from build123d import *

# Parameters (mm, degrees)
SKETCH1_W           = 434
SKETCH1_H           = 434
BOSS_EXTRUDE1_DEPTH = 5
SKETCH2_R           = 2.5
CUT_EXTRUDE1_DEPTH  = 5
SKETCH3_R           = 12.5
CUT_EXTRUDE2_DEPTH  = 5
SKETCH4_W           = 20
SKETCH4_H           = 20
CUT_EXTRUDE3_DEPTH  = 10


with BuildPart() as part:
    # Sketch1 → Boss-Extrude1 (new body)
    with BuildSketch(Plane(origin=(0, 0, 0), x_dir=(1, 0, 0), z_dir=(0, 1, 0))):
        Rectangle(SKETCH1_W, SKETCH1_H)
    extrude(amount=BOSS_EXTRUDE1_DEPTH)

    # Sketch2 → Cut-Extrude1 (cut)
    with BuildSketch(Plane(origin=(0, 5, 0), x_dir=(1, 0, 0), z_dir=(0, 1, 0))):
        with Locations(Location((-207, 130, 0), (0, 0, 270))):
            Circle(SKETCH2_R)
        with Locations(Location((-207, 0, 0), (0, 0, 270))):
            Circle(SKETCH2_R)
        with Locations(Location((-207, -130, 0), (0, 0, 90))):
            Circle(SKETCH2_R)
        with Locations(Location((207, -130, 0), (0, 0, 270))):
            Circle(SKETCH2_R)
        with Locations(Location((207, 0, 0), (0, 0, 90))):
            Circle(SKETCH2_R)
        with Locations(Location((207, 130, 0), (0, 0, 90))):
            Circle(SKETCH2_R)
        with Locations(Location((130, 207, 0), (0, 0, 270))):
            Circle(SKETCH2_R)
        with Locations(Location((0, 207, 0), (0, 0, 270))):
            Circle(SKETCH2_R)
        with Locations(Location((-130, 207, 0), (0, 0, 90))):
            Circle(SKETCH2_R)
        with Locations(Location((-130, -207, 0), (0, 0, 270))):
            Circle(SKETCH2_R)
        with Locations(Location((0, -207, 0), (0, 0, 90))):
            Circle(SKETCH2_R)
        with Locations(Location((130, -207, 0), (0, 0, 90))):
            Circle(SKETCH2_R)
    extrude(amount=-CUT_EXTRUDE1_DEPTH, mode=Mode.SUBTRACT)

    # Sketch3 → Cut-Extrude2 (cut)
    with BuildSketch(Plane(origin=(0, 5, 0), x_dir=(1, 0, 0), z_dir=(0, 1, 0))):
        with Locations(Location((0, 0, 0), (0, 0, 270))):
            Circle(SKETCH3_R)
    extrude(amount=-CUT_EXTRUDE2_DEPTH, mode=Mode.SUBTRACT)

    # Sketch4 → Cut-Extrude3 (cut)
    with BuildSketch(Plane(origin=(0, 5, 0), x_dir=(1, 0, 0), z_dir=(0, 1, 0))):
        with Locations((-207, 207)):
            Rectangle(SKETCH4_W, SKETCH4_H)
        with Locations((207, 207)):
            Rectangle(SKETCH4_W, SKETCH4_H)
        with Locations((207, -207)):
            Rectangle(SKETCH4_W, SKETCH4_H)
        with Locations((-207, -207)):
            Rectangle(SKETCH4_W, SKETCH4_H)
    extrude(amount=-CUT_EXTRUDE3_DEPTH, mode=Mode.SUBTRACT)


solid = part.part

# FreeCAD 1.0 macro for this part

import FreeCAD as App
import Part
import Sketcher
from FreeCAD import Vector

doc = App.newDocument("Part")
body = doc.addObject("PartDesign::Body", "Body")

# Sketch on XZ plane
sketch1 = doc.addObject("Sketcher::SketchObject", "Sketch")
body.addObject(sketch1)
sketch1.AttachmentSupport = (doc.XZ_Plane, [""])
sketch1.MapMode = "FlatFace"
sketch1.addGeometry(Part.LineSegment(Vector(-217, -217, 0), Vector(-217, 217, 0)), False)
sketch1.addGeometry(Part.LineSegment(Vector(-217, 217, 0), Vector(217, 217, 0)), False)
sketch1.addGeometry(Part.LineSegment(Vector(217, 217, 0), Vector(217, -217, 0)), False)
sketch1.addGeometry(Part.LineSegment(Vector(217, -217, 0), Vector(-217, -217, 0)), False)
sketch1.addConstraint(Sketcher.Constraint("Coincident", 0, 2, 1, 1))
sketch1.addConstraint(Sketcher.Constraint("Coincident", 1, 2, 2, 1))
sketch1.addConstraint(Sketcher.Constraint("Coincident", 2, 2, 3, 1))
sketch1.addConstraint(Sketcher.Constraint("Coincident", 3, 2, 0, 1))
sketch1.addConstraint(Sketcher.Constraint("Vertical", 0))
sketch1.addConstraint(Sketcher.Constraint("Horizontal", 1))
sketch1.addConstraint(Sketcher.Constraint("Vertical", 2))
sketch1.addConstraint(Sketcher.Constraint("Horizontal", 3))
sketch1.addConstraint(Sketcher.Constraint("Symmetric", 0, 2, 2, 2, -1, 1))
sketch1.addConstraint(Sketcher.Constraint("Equal", 3, 0))
sketch1.addConstraint(Sketcher.Constraint("DistanceX", 1, 1, 1, 2, 434.0))
pad1 = doc.addObject("PartDesign::Pad", "Pad")
body.addObject(pad1)
pad1.Profile = sketch1
pad1.Length = 5
pad1.Reversed = True

# Sketch on XZ plane
sketch2 = doc.addObject("Sketcher::SketchObject", "Sketch001")
body.addObject(sketch2)
sketch2.AttachmentSupport = (doc.XZ_Plane, [""])
sketch2.MapMode = "FlatFace"
sketch2.AttachmentOffset = App.Placement(Vector(0, 0, -5), App.Rotation())
sketch2.addGeometry(Part.Circle(Vector(-207, -130, 0), Vector(0, 0, 1), 2.5), False)
sketch2.addGeometry(Part.Circle(Vector(-207, 0, 0), Vector(0, 0, 1), 2.5), False)
sketch2.addGeometry(Part.Circle(Vector(-207, 130, 0), Vector(0, 0, 1), 2.5), False)
sketch2.addGeometry(Part.Circle(Vector(207, 130, 0), Vector(0, 0, 1), 2.5), False)
sketch2.addGeometry(Part.Circle(Vector(207, 0, 0), Vector(0, 0, 1), 2.5), False)
sketch2.addGeometry(Part.Circle(Vector(207, -130, 0), Vector(0, 0, 1), 2.5), False)
sketch2.addGeometry(Part.Circle(Vector(130, -207, 0), Vector(0, 0, 1), 2.5), False)
sketch2.addGeometry(Part.Circle(Vector(0, -207, 0), Vector(0, 0, 1), 2.5), False)
sketch2.addGeometry(Part.Circle(Vector(-130, -207, 0), Vector(0, 0, 1), 2.5), False)
sketch2.addGeometry(Part.Circle(Vector(-130, 207, 0), Vector(0, 0, 1), 2.5), False)
sketch2.addGeometry(Part.Circle(Vector(0, 207, 0), Vector(0, 0, 1), 2.5), False)
sketch2.addGeometry(Part.Circle(Vector(130, 207, 0), Vector(0, 0, 1), 2.5), False)
sketch2.addConstraint(Sketcher.Constraint("Equal", 0, 1))
sketch2.addConstraint(Sketcher.Constraint("Equal", 1, 2))
sketch2.addConstraint(Sketcher.Constraint("Equal", 2, 3))
sketch2.addConstraint(Sketcher.Constraint("Equal", 3, 4))
sketch2.addConstraint(Sketcher.Constraint("Equal", 4, 5))
sketch2.addConstraint(Sketcher.Constraint("Equal", 5, 6))
sketch2.addConstraint(Sketcher.Constraint("Equal", 6, 7))
sketch2.addConstraint(Sketcher.Constraint("Equal", 7, 8))
sketch2.addConstraint(Sketcher.Constraint("Equal", 8, 9))
sketch2.addConstraint(Sketcher.Constraint("Equal", 9, 10))
sketch2.addConstraint(Sketcher.Constraint("Equal", 10, 11))
sketch2.addConstraint(Sketcher.Constraint("Symmetric", 0, 3, 3, 3, -1, 1))
sketch2.addConstraint(Sketcher.Constraint("Symmetric", 1, 3, 4, 3, -1, 1))
sketch2.addConstraint(Sketcher.Constraint("Symmetric", 2, 3, 5, 3, -1, 1))
sketch2.addConstraint(Sketcher.Constraint("Symmetric", 6, 3, 9, 3, -1, 1))
sketch2.addConstraint(Sketcher.Constraint("Symmetric", 7, 3, 10, 3, -1, 1))
sketch2.addConstraint(Sketcher.Constraint("Symmetric", 8, 3, 11, 3, -1, 1))
sketch2.addConstraint(Sketcher.Constraint("Symmetric", 2, 3, 3, 3, -2))
sketch2.addConstraint(Sketcher.Constraint("Symmetric", 6, 3, 8, 3, -2))
sketch2.addConstraint(Sketcher.Constraint("PointOnObject", 1, 3, -1))
sketch2.addConstraint(Sketcher.Constraint("PointOnObject", 7, 3, -2))
sketch2.addConstraint(Sketcher.Constraint("Horizontal", 6, 3, 7, 3))
sketch2.addConstraint(Sketcher.Constraint("Vertical", 0, 3, 1, 3))
sketch2.addConstraint(Sketcher.Constraint("Diameter", 0, 5.0))
sketch2.addConstraint(Sketcher.Constraint("DistanceX", 0, 3, -1, 1, 207.0))
sketch2.addConstraint(Sketcher.Constraint("DistanceY", 0, 3, -1, 1, 130.0))
sketch2.addConstraint(Sketcher.Constraint("DistanceX", -1, 1, 6, 3, 130.0))
sketch2.addConstraint(Sketcher.Constraint("DistanceY", 6, 3, -1, 1, 207.0))
pocket1 = doc.addObject("PartDesign::Pocket", "Pocket")
body.addObject(pocket1)
pocket1.Profile = sketch2
pocket1.Length = 5
pocket1.Reversed = True

# Sketch on XZ plane
sketch3 = doc.addObject("Sketcher::SketchObject", "Sketch002")
body.addObject(sketch3)
sketch3.AttachmentSupport = (doc.XZ_Plane, [""])
sketch3.MapMode = "FlatFace"
sketch3.AttachmentOffset = App.Placement(Vector(0, 0, -5), App.Rotation())
sketch3.addGeometry(Part.Circle(Vector(0, 0, 0), Vector(0, 0, 1), 12), False)
sketch3.addConstraint(Sketcher.Constraint("Coincident", 0, 3, -1, 1))
sketch3.addConstraint(Sketcher.Constraint("Diameter", 0, 25.0))
pocket2 = doc.addObject("PartDesign::Pocket", "Pocket001")
body.addObject(pocket2)
pocket2.Profile = sketch3
pocket2.Length = 5
pocket2.Reversed = True

# Sketch on XZ plane
sketch4 = doc.addObject("Sketcher::SketchObject", "Sketch003")
body.addObject(sketch4)
sketch4.AttachmentSupport = (doc.XZ_Plane, [""])
sketch4.MapMode = "FlatFace"
sketch4.AttachmentOffset = App.Placement(Vector(0, 0, -5), App.Rotation())
sketch4.addGeometry(Part.LineSegment(Vector(-217, -217, 0), Vector(-217, -197, 0)), False)
sketch4.addGeometry(Part.LineSegment(Vector(-217, -197, 0), Vector(-197, -197, 0)), False)
sketch4.addGeometry(Part.LineSegment(Vector(-197, -197, 0), Vector(-197, -217, 0)), False)
sketch4.addGeometry(Part.LineSegment(Vector(-197, -217, 0), Vector(-217, -217, 0)), False)
sketch4.addGeometry(Part.LineSegment(Vector(197, -217, 0), Vector(197, -197, 0)), False)
sketch4.addGeometry(Part.LineSegment(Vector(197, -197, 0), Vector(217, -197, 0)), False)
sketch4.addGeometry(Part.LineSegment(Vector(217, -197, 0), Vector(217, -217, 0)), False)
sketch4.addGeometry(Part.LineSegment(Vector(217, -217, 0), Vector(197, -217, 0)), False)
sketch4.addGeometry(Part.LineSegment(Vector(197, 197, 0), Vector(197, 217, 0)), False)
sketch4.addGeometry(Part.LineSegment(Vector(197, 217, 0), Vector(217, 217, 0)), False)
sketch4.addGeometry(Part.LineSegment(Vector(217, 217, 0), Vector(217, 197, 0)), False)
sketch4.addGeometry(Part.LineSegment(Vector(217, 197, 0), Vector(197, 197, 0)), False)
sketch4.addGeometry(Part.LineSegment(Vector(-217, 197, 0), Vector(-217, 217, 0)), False)
sketch4.addGeometry(Part.LineSegment(Vector(-217, 217, 0), Vector(-197, 217, 0)), False)
sketch4.addGeometry(Part.LineSegment(Vector(-197, 217, 0), Vector(-197, 197, 0)), False)
sketch4.addGeometry(Part.LineSegment(Vector(-197, 197, 0), Vector(-217, 197, 0)), False)
sketch4.addConstraint(Sketcher.Constraint("Coincident", 0, 2, 1, 1))
sketch4.addConstraint(Sketcher.Constraint("Coincident", 1, 2, 2, 1))
sketch4.addConstraint(Sketcher.Constraint("Coincident", 2, 2, 3, 1))
sketch4.addConstraint(Sketcher.Constraint("Coincident", 3, 2, 0, 1))
sketch4.addConstraint(Sketcher.Constraint("Coincident", 4, 2, 5, 1))
sketch4.addConstraint(Sketcher.Constraint("Coincident", 5, 2, 6, 1))
sketch4.addConstraint(Sketcher.Constraint("Coincident", 6, 2, 7, 1))
sketch4.addConstraint(Sketcher.Constraint("Coincident", 7, 2, 4, 1))
sketch4.addConstraint(Sketcher.Constraint("Coincident", 8, 2, 9, 1))
sketch4.addConstraint(Sketcher.Constraint("Coincident", 9, 2, 10, 1))
sketch4.addConstraint(Sketcher.Constraint("Coincident", 10, 2, 11, 1))
sketch4.addConstraint(Sketcher.Constraint("Coincident", 11, 2, 8, 1))
sketch4.addConstraint(Sketcher.Constraint("Coincident", 12, 2, 13, 1))
sketch4.addConstraint(Sketcher.Constraint("Coincident", 13, 2, 14, 1))
sketch4.addConstraint(Sketcher.Constraint("Coincident", 14, 2, 15, 1))
sketch4.addConstraint(Sketcher.Constraint("Coincident", 15, 2, 12, 1))
sketch4.addConstraint(Sketcher.Constraint("Vertical", 0))
sketch4.addConstraint(Sketcher.Constraint("Horizontal", 1))
sketch4.addConstraint(Sketcher.Constraint("Vertical", 2))
sketch4.addConstraint(Sketcher.Constraint("Horizontal", 3))
sketch4.addConstraint(Sketcher.Constraint("Vertical", 4))
sketch4.addConstraint(Sketcher.Constraint("Horizontal", 5))
sketch4.addConstraint(Sketcher.Constraint("Vertical", 6))
sketch4.addConstraint(Sketcher.Constraint("Horizontal", 7))
sketch4.addConstraint(Sketcher.Constraint("Vertical", 8))
sketch4.addConstraint(Sketcher.Constraint("Horizontal", 9))
sketch4.addConstraint(Sketcher.Constraint("Vertical", 10))
sketch4.addConstraint(Sketcher.Constraint("Horizontal", 11))
sketch4.addConstraint(Sketcher.Constraint("Vertical", 12))
sketch4.addConstraint(Sketcher.Constraint("Horizontal", 13))
sketch4.addConstraint(Sketcher.Constraint("Vertical", 14))
sketch4.addConstraint(Sketcher.Constraint("Horizontal", 15))
sketch4.addConstraint(Sketcher.Constraint("Symmetric", 2, 2, 8, 2, -1, 1))
sketch4.addConstraint(Sketcher.Constraint("Symmetric", 0, 2, 10, 2, -1, 1))
sketch4.addConstraint(Sketcher.Constraint("Symmetric", 6, 2, 12, 2, -1, 1))
sketch4.addConstraint(Sketcher.Constraint("Symmetric", 4, 2, 14, 2, -1, 1))
sketch4.addConstraint(Sketcher.Constraint("Symmetric", 1, 2, 4, 2, -2))
sketch4.addConstraint(Sketcher.Constraint("Symmetric", 3, 2, 6, 2, -2))
sketch4.addConstraint(Sketcher.Constraint("Equal", 15, 0))
sketch4.addConstraint(Sketcher.Constraint("DistanceX", 1, 1, 1, 2, 20.0))
sketch4.addConstraint(Sketcher.Constraint("DistanceX", 0, 2, -1, 1, 217.0))
sketch4.addConstraint(Sketcher.Constraint("DistanceY", 0, 2, -1, 1, 197.0))
pocket3 = doc.addObject("PartDesign::Pocket", "Pocket002")
body.addObject(pocket3)
pocket3.Profile = sketch4
pocket3.Length = 10
pocket3.Reversed = True

doc.recompute()
